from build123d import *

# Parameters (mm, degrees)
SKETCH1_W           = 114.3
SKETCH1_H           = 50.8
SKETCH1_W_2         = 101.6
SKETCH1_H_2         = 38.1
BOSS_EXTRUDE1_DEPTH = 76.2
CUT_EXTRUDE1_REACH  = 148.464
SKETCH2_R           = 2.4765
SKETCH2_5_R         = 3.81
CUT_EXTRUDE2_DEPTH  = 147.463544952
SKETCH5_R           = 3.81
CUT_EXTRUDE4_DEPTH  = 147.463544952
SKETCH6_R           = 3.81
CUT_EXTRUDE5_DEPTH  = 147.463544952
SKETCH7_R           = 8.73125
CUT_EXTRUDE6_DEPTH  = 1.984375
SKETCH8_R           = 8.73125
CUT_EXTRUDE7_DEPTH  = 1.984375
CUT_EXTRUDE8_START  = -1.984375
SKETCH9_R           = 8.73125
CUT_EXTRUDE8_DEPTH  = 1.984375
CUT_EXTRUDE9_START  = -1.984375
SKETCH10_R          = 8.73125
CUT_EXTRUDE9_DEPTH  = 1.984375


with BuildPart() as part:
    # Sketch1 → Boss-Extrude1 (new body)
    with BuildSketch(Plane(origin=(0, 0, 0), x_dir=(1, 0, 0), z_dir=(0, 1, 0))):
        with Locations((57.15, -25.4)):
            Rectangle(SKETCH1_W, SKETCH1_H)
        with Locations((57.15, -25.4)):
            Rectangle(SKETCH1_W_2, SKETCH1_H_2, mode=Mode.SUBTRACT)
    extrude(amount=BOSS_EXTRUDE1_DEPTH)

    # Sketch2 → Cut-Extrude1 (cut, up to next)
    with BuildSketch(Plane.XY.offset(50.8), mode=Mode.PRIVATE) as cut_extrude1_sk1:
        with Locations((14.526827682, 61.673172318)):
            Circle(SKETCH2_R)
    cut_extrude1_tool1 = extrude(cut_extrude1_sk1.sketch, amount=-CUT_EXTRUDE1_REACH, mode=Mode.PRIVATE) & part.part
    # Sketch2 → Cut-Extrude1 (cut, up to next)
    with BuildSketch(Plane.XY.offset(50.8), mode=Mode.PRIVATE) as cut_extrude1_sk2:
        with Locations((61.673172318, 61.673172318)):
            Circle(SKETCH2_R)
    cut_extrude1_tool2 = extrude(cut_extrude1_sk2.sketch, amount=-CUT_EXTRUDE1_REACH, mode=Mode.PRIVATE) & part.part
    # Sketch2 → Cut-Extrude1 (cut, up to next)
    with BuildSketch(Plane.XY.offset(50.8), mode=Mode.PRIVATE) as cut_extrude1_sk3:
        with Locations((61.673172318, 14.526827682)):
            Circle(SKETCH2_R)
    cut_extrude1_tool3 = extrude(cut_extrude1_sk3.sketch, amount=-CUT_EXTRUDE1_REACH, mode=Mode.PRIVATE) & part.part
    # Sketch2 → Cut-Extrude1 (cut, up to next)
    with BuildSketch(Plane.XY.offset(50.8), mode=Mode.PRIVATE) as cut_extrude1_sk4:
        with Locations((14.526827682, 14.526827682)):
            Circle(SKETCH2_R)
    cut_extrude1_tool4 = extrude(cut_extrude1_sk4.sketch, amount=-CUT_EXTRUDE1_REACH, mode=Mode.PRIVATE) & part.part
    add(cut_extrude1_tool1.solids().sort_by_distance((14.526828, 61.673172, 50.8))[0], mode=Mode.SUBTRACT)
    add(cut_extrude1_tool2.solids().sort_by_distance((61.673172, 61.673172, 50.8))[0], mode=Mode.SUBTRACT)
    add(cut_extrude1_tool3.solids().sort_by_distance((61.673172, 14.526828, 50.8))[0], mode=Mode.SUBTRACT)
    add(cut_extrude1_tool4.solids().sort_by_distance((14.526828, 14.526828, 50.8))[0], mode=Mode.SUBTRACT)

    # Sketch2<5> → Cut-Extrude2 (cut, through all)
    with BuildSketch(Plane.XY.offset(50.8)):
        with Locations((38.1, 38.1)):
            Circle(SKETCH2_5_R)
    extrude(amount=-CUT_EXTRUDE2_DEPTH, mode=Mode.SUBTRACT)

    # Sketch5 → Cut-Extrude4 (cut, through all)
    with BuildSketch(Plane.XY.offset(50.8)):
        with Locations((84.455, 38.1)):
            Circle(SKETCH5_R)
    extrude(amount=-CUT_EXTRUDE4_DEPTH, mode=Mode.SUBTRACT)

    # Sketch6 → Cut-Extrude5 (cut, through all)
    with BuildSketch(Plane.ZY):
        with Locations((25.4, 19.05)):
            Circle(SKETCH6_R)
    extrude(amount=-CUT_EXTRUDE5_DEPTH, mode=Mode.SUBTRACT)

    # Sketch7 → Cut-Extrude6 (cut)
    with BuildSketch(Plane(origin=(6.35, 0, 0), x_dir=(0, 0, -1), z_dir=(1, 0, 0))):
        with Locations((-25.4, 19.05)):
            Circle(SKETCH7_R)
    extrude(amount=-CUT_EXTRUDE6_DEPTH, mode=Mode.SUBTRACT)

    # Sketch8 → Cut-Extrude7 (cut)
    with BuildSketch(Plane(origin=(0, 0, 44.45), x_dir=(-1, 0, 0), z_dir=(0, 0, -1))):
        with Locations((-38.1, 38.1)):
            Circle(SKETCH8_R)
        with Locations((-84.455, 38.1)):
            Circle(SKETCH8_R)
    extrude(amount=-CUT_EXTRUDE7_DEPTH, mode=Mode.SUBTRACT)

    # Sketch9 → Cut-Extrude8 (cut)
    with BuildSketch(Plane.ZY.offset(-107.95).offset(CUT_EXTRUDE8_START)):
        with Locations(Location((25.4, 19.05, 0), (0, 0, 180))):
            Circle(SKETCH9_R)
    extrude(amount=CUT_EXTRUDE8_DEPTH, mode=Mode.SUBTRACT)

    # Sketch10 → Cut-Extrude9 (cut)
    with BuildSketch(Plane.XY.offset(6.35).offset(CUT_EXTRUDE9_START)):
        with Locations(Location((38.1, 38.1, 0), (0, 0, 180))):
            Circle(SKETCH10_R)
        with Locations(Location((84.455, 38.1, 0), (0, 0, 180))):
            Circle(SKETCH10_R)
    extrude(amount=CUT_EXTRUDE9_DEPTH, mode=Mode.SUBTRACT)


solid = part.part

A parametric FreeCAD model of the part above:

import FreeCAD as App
import Part
import Sketcher

V = App.Vector
Q = App.Units.Quantity

doc = App.newDocument("Part")
params = doc.addObject("Spreadsheet::Sheet", "Params")
for row, (alias, value) in enumerate([
    ("sketch1_width", "4 in"),
    ("sketch1_height", "2 in"),
    ("sketch1_width2", "4.5 in"),
    ("sketch1_height2", "1.5 in"),
    ("pad1_length", "3 in"),
    ("sketch2_diameter", "0.195 in"),
    ("sketch3_diameter", "0.195 in"),
    ("sketch4_diameter", "0.195 in"),
    ("sketch5_diameter", "0.195 in"),
    ("sketch6_diameter", "0.3 in"),
    ("sketch7_diameter", "0.3 in"),
    ("sketch8_diameter", "0.3 in"),
    ("sketch9_diameter", "0.6875 in"),
    ("pocket8_length", "0.078125 in"),
    ("sketch10_diameter", "0.6875 in"),
    ("pocket9_length", "0.078125 in"),
    ("sketch11_diameter", "0.6875 in"),
    ("pocket10_length", "0.078125 in"),
    ("sketch12_diameter", "0.6875 in"),
    ("pocket11_length", "0.078125 in"),
], start=1):
    params.set(f"A{row}", alias)
    params.set(f"B{row}", "=" + value)
    params.setAlias(f"B{row}", alias)

body = doc.addObject("PartDesign::Body", "Body")

# Sketch on XZ plane
sketch1 = body.newObject("Sketcher::SketchObject", "Sketch")
sketch1.AttachmentSupport = (doc.getObject("XZ_Plane"), [""])
sketch1.MapMode = "FlatFace"
sketch1.addGeometry([
    Part.LineSegment(V(0, 0, 0), V(0, 51, 0)),  # 0
    Part.LineSegment(V(0, 51, 0), V(114, 51, 0)),  # 1
    Part.LineSegment(V(114, 51, 0), V(114, 0, 0)),  # 2
    Part.LineSegment(V(114, 0, 0), V(0, 0, 0)),  # 3
    Part.LineSegment(V(108, 44, 0), V(6, 44, 0)),  # 4
    Part.LineSegment(V(6, 44, 0), V(6, 6, 0)),  # 5
    Part.LineSegment(V(6, 6, 0), V(108, 6, 0)),  # 6
    Part.LineSegment(V(108, 6, 0), V(108, 44, 0)),  # 7
], False)
sketch1.addConstraint([
    Sketcher.Constraint("Coincident", 0, 2, 1, 1),
    Sketcher.Constraint("Coincident", 1, 2, 2, 1),
    Sketcher.Constraint("Coincident", 2, 2, 3, 1),
    Sketcher.Constraint("Coincident", 3, 2, 0, 1),
    Sketcher.Constraint("Coincident", 4, 2, 5, 1),
    Sketcher.Constraint("Coincident", 5, 2, 6, 1),
    Sketcher.Constraint("Coincident", 6, 2, 7, 1),
    Sketcher.Constraint("Coincident", 7, 2, 4, 1),
    Sketcher.Constraint("Vertical", 0),
    Sketcher.Constraint("Horizontal", 1),
    Sketcher.Constraint("Vertical", 2),
    Sketcher.Constraint("Horizontal", 3),
    Sketcher.Constraint("Horizontal", 4),
    Sketcher.Constraint("Vertical", 5),
    Sketcher.Constraint("Horizontal", 6),
    Sketcher.Constraint("Vertical", 7),
    Sketcher.Constraint("Coincident", 3, 2, -1, 1),
    Sketcher.Constraint("DistanceX", 4, 2, 4, 1, Q("4 in")),
    Sketcher.Constraint("DistanceY", 0, 1, 0, 2, Q("2 in")),
    Sketcher.Constraint("DistanceX", 1, 1, 1, 2, Q("4.5 in")),
    Sketcher.Constraint("DistanceY", 5, 2, 5, 1, Q("1.5 in")),
    Sketcher.Constraint("DistanceX", -1, 1, 4, 2, Q("0.25 in")),
    Sketcher.Constraint("DistanceY", -1, 1, 4, 2, Q("1.75 in")),
])
sketch1.setExpression("Constraints[17]", "Params.sketch1_width")
sketch1.setExpression("Constraints[18]", "Params.sketch1_height")
sketch1.setExpression("Constraints[19]", "Params.sketch1_width2")
sketch1.setExpression("Constraints[20]", "Params.sketch1_height2")
pad1 = body.newObject("PartDesign::Pad", "Pad")
pad1.Profile = sketch1
pad1.setExpression("Length", "Params.pad1_length")
pad1.Reversed = True

# Sketch on XY plane
sketch2 = body.newObject("Sketcher::SketchObject", "Sketch001")
sketch2.AttachmentSupport = (doc.getObject("XY_Plane"), [""])
sketch2.MapMode = "FlatFace"
sketch2.AttachmentOffset = App.Placement(V(0, 0, 2 * 25.4), App.Rotation())
sketch2.addGeometry(Part.Circle(V(14.5, 61.7, 0), V(0, 0, 1), 2.5), False)
sketch2.addConstraint([
    Sketcher.Constraint("Diameter", 0, Q("0.195 in")),
    Sketcher.Constraint("DistanceX", -1, 1, 0, 3, Q("14.526828 mm")),
    Sketcher.Constraint("DistanceY", -1, 1, 0, 3, Q("61.673172 mm")),
])
sketch2.setExpression("Constraints[0]", "Params.sketch2_diameter")
pocket1 = body.newObject("PartDesign::Pocket", "Pocket")
pocket1.Profile = sketch2
pocket1.Type = "UpToFirst"

# Sketch on XY plane
sketch3 = body.newObject("Sketcher::SketchObject", "Sketch002")
sketch3.AttachmentSupport = (doc.getObject("XY_Plane"), [""])
sketch3.MapMode = "FlatFace"
sketch3.AttachmentOffset = App.Placement(V(0, 0, 2 * 25.4), App.Rotation())
sketch3.addGeometry(Part.Circle(V(61.7, 61.7, 0), V(0, 0, 1), 2.5), False)
sketch3.addConstraint([
    Sketcher.Constraint("Diameter", 0, Q("0.195 in")),
    Sketcher.Constraint("DistanceX", -1, 1, 0, 3, Q("61.673172 mm")),
    Sketcher.Constraint("DistanceY", -1, 1, 0, 3, Q("61.673172 mm")),
])
sketch3.setExpression("Constraints[0]", "Params.sketch3_diameter")
pocket2 = body.newObject("PartDesign::Pocket", "Pocket001")
pocket2.Profile = sketch3
pocket2.Type = "UpToFirst"

# Sketch on XY plane
sketch4 = body.newObject("Sketcher::SketchObject", "Sketch003")
sketch4.AttachmentSupport = (doc.getObject("XY_Plane"), [""])
sketch4.MapMode = "FlatFace"
sketch4.AttachmentOffset = App.Placement(V(0, 0, 2 * 25.4), App.Rotation())
sketch4.addGeometry(Part.Circle(V(61.7, 14.5, 0), V(0, 0, 1), 2.5), False)
sketch4.addConstraint([
    Sketcher.Constraint("Diameter", 0, Q("0.195 in")),
    Sketcher.Constraint("DistanceX", -1, 1, 0, 3, Q("61.673172 mm")),
    Sketcher.Constraint("DistanceY", -1, 1, 0, 3, Q("14.526828 mm")),
])
sketch4.setExpression("Constraints[0]", "Params.sketch4_diameter")
pocket3 = body.newObject("PartDesign::Pocket", "Pocket002")
pocket3.Profile = sketch4
pocket3.Type = "UpToFirst"

# Sketch on XY plane
sketch5 = body.newObject("Sketcher::SketchObject", "Sketch004")
sketch5.AttachmentSupport = (doc.getObject("XY_Plane"), [""])
sketch5.MapMode = "FlatFace"
sketch5.AttachmentOffset = App.Placement(V(0, 0, 2 * 25.4), App.Rotation())
sketch5.addGeometry(Part.Circle(V(14.5, 14.5, 0), V(0, 0, 1), 2.5), False)
sketch5.addConstraint([
    Sketcher.Constraint("Diameter", 0, Q("0.195 in")),
    Sketcher.Constraint("DistanceX", -1, 1, 0, 3, Q("14.526828 mm")),
    Sketcher.Constraint("DistanceY", -1, 1, 0, 3, Q("14.526828 mm")),
])
sketch5.setExpression("Constraints[0]", "Params.sketch5_diameter")
pocket4 = body.newObject("PartDesign::Pocket", "Pocket003")
pocket4.Profile = sketch5
pocket4.Type = "UpToFirst"

# Sketch on XY plane
sketch6 = body.newObject("Sketcher::SketchObject", "Sketch005")
sketch6.AttachmentSupport = (doc.getObject("XY_Plane"), [""])
sketch6.MapMode = "FlatFace"
sketch6.AttachmentOffset = App.Placement(V(0, 0, 2 * 25.4), App.Rotation())
sketch6.addGeometry(Part.Circle(V(38.1, 38.1, 0), V(0, 0, 1), 3.8), False)
sketch6.addConstraint([
    Sketcher.Constraint("Diameter", 0, Q("0.3 in")),
    Sketcher.Constraint("DistanceX", -1, 1, 0, 3, Q("1.5 in")),
    Sketcher.Constraint("DistanceY", -1, 1, 0, 3, Q("1.5 in")),
])
sketch6.setExpression("Constraints[0]", "Params.sketch6_diameter")
pocket5 = body.newObject("PartDesign::Pocket", "Pocket004")
pocket5.Profile = sketch6
pocket5.Type = "ThroughAll"

# Sketch on XY plane
sketch7 = body.newObject("Sketcher::SketchObject", "Sketch006")
sketch7.AttachmentSupport = (doc.getObject("XY_Plane"), [""])
sketch7.MapMode = "FlatFace"
sketch7.AttachmentOffset = App.Placement(V(0, 0, 2 * 25.4), App.Rotation())
sketch7.addGeometry(Part.Circle(V(84.5, 38.1, 0), V(0, 0, 1), 3.8), False)
sketch7.addConstraint([
    Sketcher.Constraint("Diameter", 0, Q("0.3 in")),
    Sketcher.Constraint("DistanceY", -1, 1, 0, 3, Q("1.5 in")),
    Sketcher.Constraint("DistanceX", -1, 1, 0, 3, Q("3.325 in")),
])
sketch7.setExpression("Constraints[0]", "Params.sketch7_diameter")
pocket6 = body.newObject("PartDesign::Pocket", "Pocket005")
pocket6.Profile = sketch7
pocket6.Type = "ThroughAll"

# Sketch on YZ plane
sketch8 = body.newObject("Sketcher::SketchObject", "Sketch007")
sketch8.AttachmentSupport = (doc.getObject("YZ_Plane"), [""])
sketch8.MapMode = "FlatFace"
sketch8.addGeometry(Part.Circle(V(19.1, 25.4, 0), V(0, 0, 1), 3.8), False)
sketch8.addConstraint([
    Sketcher.Constraint("Diameter", 0, Q("0.3 in")),
    Sketcher.Constraint("DistanceY", -1, 1, 0, 3, Q("1 in")),
    Sketcher.Constraint("DistanceX", -1, 1, 0, 3, Q("0.75 in")),
])
sketch8.setExpression("Constraints[0]", "Params.sketch8_diameter")
pocket7 = body.newObject("PartDesign::Pocket", "Pocket006")
pocket7.Profile = sketch8
pocket7.Type = "ThroughAll"
pocket7.Reversed = True

# Sketch on YZ plane
sketch9 = body.newObject("Sketcher::SketchObject", "Sketch008")
sketch9.AttachmentSupport = (doc.getObject("YZ_Plane"), [""])
sketch9.MapMode = "FlatFace"
sketch9.AttachmentOffset = App.Placement(V(0, 0, 0.25 * 25.4), App.Rotation())
sketch9.addGeometry(Part.Circle(V(19, 25, 0), V(0, 0, 1), 9), False)
sketch9.addConstraint([
    Sketcher.Constraint("Diameter", 0, Q("0.6875 in")),
    Sketcher.Constraint("DistanceY", -1, 1, 0, 3, Q("1 in")),
    Sketcher.Constraint("DistanceX", -1, 1, 0, 3, Q("0.75 in")),
])
sketch9.setExpression("Constraints[0]", "Params.sketch9_diameter")
pocket8 = body.newObject("PartDesign::Pocket", "Pocket007")
pocket8.Profile = sketch9
pocket8.setExpression("Length", "Params.pocket8_length")

# Sketch on XY plane
sketch10 = body.newObject("Sketcher::SketchObject", "Sketch009")
sketch10.AttachmentSupport = (doc.getObject("XY_Plane"), [""])
sketch10.MapMode = "FlatFace"
sketch10.AttachmentOffset = App.Placement(V(0, 0, 1.75 * 25.4), App.Rotation())
sketch10.addGeometry([
    Part.Circle(V(38, 38, 0), V(0, 0, 1), 9),
    Part.Circle(V(84, 38, 0), V(0, 0, 1), 9),
], False)
sketch10.addConstraint([
    Sketcher.Constraint("Equal", 0, 1),
    Sketcher.Constraint("Horizontal", 0, 3, 1, 3),
    Sketcher.Constraint("Diameter", 0, Q("0.6875 in")),
    Sketcher.Constraint("DistanceX", -1, 1, 0, 3, Q("1.5 in")),
    Sketcher.Constraint("DistanceY", -1, 1, 0, 3, Q("1.5 in")),
    Sketcher.Constraint("DistanceX", -1, 1, 1, 3, Q("3.325 in")),
])
sketch10.setExpression("Constraints[2]", "Params.sketch10_diameter")
pocket9 = body.newObject("PartDesign::Pocket", "Pocket008")
pocket9.Profile = sketch10
pocket9.setExpression("Length", "Params.pocket9_length")
pocket9.Reversed = True

# Sketch on YZ plane
sketch11 = body.newObject("Sketcher::SketchObject", "Sketch010")
sketch11.AttachmentSupport = (doc.getObject("YZ_Plane"), [""])
sketch11.MapMode = "FlatFace"
sketch11.AttachmentOffset = App.Placement(V(0, 0, 4.328125 * 25.4), App.Rotation())
sketch11.addGeometry(Part.Circle(V(19, 25, 0), V(0, 0, 1), 9), False)
sketch11.addConstraint([
    Sketcher.Constraint("Diameter", 0, Q("0.6875 in")),
    Sketcher.Constraint("DistanceY", -1, 1, 0, 3, Q("1 in")),
    Sketcher.Constraint("DistanceX", -1, 1, 0, 3, Q("0.75 in")),
])
sketch11.setExpression("Constraints[0]", "Params.sketch11_diameter")
pocket10 = body.newObject("PartDesign::Pocket", "Pocket009")
pocket10.Profile = sketch11
pocket10.setExpression("Length", "Params.pocket10_length")

# Sketch on XY plane
sketch12 = body.newObject("Sketcher::SketchObject", "Sketch011")
sketch12.AttachmentSupport = (doc.getObject("XY_Plane"), [""])
sketch12.MapMode = "FlatFace"
sketch12.AttachmentOffset = App.Placement(V(0, 0, 0.171875 * 25.4), App.Rotation())
sketch12.addGeometry([
    Part.Circle(V(38, 38, 0), V(0, 0, 1), 9),
    Part.Circle(V(84, 38, 0), V(0, 0, 1), 9),
], False)
sketch12.addConstraint([
    Sketcher.Constraint("Equal", 0, 1),
    Sketcher.Constraint("Horizontal", 0, 3, 1, 3),
    Sketcher.Constraint("Diameter", 0, Q("0.6875 in")),
    Sketcher.Constraint("DistanceX", -1, 1, 0, 3, Q("1.5 in")),
    Sketcher.Constraint("DistanceY", -1, 1, 0, 3, Q("1.5 in")),
    Sketcher.Constraint("DistanceX", -1, 1, 1, 3, Q("3.325 in")),
])
sketch12.setExpression("Constraints[2]", "Params.sketch12_diameter")
pocket11 = body.newObject("PartDesign::Pocket", "Pocket010")
pocket11.Profile = sketch12
pocket11.setExpression("Length", "Params.pocket11_length")
pocket11.Reversed = True

doc.recompute()
